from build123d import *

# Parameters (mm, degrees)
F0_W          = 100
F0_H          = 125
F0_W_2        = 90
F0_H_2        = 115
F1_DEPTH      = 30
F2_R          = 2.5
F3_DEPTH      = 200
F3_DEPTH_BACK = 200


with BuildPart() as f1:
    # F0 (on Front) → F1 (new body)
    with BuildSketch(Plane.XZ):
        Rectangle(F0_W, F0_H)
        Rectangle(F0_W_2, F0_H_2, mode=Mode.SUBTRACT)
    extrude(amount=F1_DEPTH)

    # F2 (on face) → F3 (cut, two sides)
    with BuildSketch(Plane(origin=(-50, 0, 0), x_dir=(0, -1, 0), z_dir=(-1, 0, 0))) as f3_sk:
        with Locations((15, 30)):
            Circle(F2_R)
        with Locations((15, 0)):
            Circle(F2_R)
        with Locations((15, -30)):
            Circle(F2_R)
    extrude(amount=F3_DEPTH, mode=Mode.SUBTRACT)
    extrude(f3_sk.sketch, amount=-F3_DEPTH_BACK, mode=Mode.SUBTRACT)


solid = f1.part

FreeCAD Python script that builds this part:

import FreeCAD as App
import Part
import Sketcher
Q = App.Units.Quantity

doc = App.newDocument("Part")
body = doc.addObject("PartDesign::Body", "Body")

sketch1 = body.newObject("Sketcher::SketchObject", "Sketch")
sketch1.AttachmentSupport = (doc.getObject("XZ_Plane"), [""])
sketch1.MapMode = "FlatFace"
sketch1.addGeometry(Part.LineSegment(App.Vector(-50, 62, 0), App.Vector(-50, -62, 0)), False)
sketch1.addGeometry(Part.LineSegment(App.Vector(-50, -62, 0), App.Vector(50, -62, 0)), False)
sketch1.addGeometry(Part.LineSegment(App.Vector(50, -62, 0), App.Vector(50, 62, 0)), False)
sketch1.addGeometry(Part.LineSegment(App.Vector(50, 62, 0), App.Vector(-50, 62, 0)), False)
sketch1.addGeometry(Part.LineSegment(App.Vector(45, -58, 0), App.Vector(-45, -58, 0)), False)
sketch1.addGeometry(Part.LineSegment(App.Vector(-45, -58, 0), App.Vector(-45, 58, 0)), False)
sketch1.addGeometry(Part.LineSegment(App.Vector(-45, 58, 0), App.Vector(45, 58, 0)), False)
sketch1.addGeometry(Part.LineSegment(App.Vector(45, 58, 0), App.Vector(45, -58, 0)), False)
sketch1.addConstraint(Sketcher.Constraint("Coincident", 0, 2, 1, 1))
sketch1.addConstraint(Sketcher.Constraint("Coincident", 1, 2, 2, 1))
sketch1.addConstraint(Sketcher.Constraint("Coincident", 2, 2, 3, 1))
sketch1.addConstraint(Sketcher.Constraint("Coincident", 3, 2, 0, 1))
sketch1.addConstraint(Sketcher.Constraint("Coincident", 4, 2, 5, 1))
sketch1.addConstraint(Sketcher.Constraint("Coincident", 5, 2, 6, 1))
sketch1.addConstraint(Sketcher.Constraint("Coincident", 6, 2, 7, 1))
sketch1.addConstraint(Sketcher.Constraint("Coincident", 7, 2, 4, 1))
sketch1.addConstraint(Sketcher.Constraint("Vertical", 0))
sketch1.addConstraint(Sketcher.Constraint("Horizontal", 1))
sketch1.addConstraint(Sketcher.Constraint("Vertical", 2))
sketch1.addConstraint(Sketcher.Constraint("Horizontal", 3))
sketch1.addConstraint(Sketcher.Constraint("Horizontal", 4))
sketch1.addConstraint(Sketcher.Constraint("Vertical", 5))
sketch1.addConstraint(Sketcher.Constraint("Horizontal", 6))
sketch1.addConstraint(Sketcher.Constraint("Vertical", 7))
sketch1.addConstraint(Sketcher.Constraint("Symmetric", 0, 2, 2, 2, -1, 1))
sketch1.addConstraint(Sketcher.Constraint("Symmetric", 4, 2, 6, 2, -1, 1))
sketch1.addConstraint(Sketcher.Constraint("DistanceX", 1, 1, 1, 2, Q("100 mm")))
sketch1.addConstraint(Sketcher.Constraint("DistanceX", 4, 2, 4, 1, Q("90 mm")))
sketch1.addConstraint(Sketcher.Constraint("DistanceY", 0, 2, 0, 1, Q("125 mm")))
sketch1.addConstraint(Sketcher.Constraint("DistanceY", 5, 1, 5, 2, Q("115 mm")))
pad1 = body.newObject("PartDesign::Pad", "Pad")
pad1.Profile = sketch1
pad1.Length = 30

sketch2 = body.newObject("Sketcher::SketchObject", "Sketch001")
sketch2.AttachmentSupport = (doc.getObject("YZ_Plane"), [""])
sketch2.MapMode = "FlatFace"
sketch2.AttachmentOffset = App.Placement(App.Vector(0, 0, -50), App.Rotation())
sketch2.addGeometry(Part.Circle(App.Vector(-15, 30, 0), App.Vector(0, 0, 1), 2.5), False)
sketch2.addGeometry(Part.Circle(App.Vector(-15, 0, 0), App.Vector(0, 0, 1), 2.5), False)
sketch2.addGeometry(Part.Circle(App.Vector(-15, -30, 0), App.Vector(0, 0, 1), 2.5), False)
sketch2.addConstraint(Sketcher.Constraint("Equal", 0, 1))
sketch2.addConstraint(Sketcher.Constraint("Equal", 1, 2))
sketch2.addConstraint(Sketcher.Constraint("Symmetric", 0, 3, 2, 3, -1))
sketch2.addConstraint(Sketcher.Constraint("PointOnObject", 1, 3, -1))
sketch2.addConstraint(Sketcher.Constraint("Vertical", 0, 3, 1, 3))
sketch2.addConstraint(Sketcher.Constraint("Diameter", 0, Q("5 mm")))
sketch2.addConstraint(Sketcher.Constraint("DistanceX", 0, 3, -1, 1, Q("15 mm")))
sketch2.addConstraint(Sketcher.Constraint("DistanceY", -1, 1, 0, 3, Q("30 mm")))
pocket1 = body.newObject("PartDesign::Pocket", "Pocket")
pocket1.Profile = sketch2
pocket1.Type = "ThroughAll"
pocket1.Midplane = True

doc.recompute()
